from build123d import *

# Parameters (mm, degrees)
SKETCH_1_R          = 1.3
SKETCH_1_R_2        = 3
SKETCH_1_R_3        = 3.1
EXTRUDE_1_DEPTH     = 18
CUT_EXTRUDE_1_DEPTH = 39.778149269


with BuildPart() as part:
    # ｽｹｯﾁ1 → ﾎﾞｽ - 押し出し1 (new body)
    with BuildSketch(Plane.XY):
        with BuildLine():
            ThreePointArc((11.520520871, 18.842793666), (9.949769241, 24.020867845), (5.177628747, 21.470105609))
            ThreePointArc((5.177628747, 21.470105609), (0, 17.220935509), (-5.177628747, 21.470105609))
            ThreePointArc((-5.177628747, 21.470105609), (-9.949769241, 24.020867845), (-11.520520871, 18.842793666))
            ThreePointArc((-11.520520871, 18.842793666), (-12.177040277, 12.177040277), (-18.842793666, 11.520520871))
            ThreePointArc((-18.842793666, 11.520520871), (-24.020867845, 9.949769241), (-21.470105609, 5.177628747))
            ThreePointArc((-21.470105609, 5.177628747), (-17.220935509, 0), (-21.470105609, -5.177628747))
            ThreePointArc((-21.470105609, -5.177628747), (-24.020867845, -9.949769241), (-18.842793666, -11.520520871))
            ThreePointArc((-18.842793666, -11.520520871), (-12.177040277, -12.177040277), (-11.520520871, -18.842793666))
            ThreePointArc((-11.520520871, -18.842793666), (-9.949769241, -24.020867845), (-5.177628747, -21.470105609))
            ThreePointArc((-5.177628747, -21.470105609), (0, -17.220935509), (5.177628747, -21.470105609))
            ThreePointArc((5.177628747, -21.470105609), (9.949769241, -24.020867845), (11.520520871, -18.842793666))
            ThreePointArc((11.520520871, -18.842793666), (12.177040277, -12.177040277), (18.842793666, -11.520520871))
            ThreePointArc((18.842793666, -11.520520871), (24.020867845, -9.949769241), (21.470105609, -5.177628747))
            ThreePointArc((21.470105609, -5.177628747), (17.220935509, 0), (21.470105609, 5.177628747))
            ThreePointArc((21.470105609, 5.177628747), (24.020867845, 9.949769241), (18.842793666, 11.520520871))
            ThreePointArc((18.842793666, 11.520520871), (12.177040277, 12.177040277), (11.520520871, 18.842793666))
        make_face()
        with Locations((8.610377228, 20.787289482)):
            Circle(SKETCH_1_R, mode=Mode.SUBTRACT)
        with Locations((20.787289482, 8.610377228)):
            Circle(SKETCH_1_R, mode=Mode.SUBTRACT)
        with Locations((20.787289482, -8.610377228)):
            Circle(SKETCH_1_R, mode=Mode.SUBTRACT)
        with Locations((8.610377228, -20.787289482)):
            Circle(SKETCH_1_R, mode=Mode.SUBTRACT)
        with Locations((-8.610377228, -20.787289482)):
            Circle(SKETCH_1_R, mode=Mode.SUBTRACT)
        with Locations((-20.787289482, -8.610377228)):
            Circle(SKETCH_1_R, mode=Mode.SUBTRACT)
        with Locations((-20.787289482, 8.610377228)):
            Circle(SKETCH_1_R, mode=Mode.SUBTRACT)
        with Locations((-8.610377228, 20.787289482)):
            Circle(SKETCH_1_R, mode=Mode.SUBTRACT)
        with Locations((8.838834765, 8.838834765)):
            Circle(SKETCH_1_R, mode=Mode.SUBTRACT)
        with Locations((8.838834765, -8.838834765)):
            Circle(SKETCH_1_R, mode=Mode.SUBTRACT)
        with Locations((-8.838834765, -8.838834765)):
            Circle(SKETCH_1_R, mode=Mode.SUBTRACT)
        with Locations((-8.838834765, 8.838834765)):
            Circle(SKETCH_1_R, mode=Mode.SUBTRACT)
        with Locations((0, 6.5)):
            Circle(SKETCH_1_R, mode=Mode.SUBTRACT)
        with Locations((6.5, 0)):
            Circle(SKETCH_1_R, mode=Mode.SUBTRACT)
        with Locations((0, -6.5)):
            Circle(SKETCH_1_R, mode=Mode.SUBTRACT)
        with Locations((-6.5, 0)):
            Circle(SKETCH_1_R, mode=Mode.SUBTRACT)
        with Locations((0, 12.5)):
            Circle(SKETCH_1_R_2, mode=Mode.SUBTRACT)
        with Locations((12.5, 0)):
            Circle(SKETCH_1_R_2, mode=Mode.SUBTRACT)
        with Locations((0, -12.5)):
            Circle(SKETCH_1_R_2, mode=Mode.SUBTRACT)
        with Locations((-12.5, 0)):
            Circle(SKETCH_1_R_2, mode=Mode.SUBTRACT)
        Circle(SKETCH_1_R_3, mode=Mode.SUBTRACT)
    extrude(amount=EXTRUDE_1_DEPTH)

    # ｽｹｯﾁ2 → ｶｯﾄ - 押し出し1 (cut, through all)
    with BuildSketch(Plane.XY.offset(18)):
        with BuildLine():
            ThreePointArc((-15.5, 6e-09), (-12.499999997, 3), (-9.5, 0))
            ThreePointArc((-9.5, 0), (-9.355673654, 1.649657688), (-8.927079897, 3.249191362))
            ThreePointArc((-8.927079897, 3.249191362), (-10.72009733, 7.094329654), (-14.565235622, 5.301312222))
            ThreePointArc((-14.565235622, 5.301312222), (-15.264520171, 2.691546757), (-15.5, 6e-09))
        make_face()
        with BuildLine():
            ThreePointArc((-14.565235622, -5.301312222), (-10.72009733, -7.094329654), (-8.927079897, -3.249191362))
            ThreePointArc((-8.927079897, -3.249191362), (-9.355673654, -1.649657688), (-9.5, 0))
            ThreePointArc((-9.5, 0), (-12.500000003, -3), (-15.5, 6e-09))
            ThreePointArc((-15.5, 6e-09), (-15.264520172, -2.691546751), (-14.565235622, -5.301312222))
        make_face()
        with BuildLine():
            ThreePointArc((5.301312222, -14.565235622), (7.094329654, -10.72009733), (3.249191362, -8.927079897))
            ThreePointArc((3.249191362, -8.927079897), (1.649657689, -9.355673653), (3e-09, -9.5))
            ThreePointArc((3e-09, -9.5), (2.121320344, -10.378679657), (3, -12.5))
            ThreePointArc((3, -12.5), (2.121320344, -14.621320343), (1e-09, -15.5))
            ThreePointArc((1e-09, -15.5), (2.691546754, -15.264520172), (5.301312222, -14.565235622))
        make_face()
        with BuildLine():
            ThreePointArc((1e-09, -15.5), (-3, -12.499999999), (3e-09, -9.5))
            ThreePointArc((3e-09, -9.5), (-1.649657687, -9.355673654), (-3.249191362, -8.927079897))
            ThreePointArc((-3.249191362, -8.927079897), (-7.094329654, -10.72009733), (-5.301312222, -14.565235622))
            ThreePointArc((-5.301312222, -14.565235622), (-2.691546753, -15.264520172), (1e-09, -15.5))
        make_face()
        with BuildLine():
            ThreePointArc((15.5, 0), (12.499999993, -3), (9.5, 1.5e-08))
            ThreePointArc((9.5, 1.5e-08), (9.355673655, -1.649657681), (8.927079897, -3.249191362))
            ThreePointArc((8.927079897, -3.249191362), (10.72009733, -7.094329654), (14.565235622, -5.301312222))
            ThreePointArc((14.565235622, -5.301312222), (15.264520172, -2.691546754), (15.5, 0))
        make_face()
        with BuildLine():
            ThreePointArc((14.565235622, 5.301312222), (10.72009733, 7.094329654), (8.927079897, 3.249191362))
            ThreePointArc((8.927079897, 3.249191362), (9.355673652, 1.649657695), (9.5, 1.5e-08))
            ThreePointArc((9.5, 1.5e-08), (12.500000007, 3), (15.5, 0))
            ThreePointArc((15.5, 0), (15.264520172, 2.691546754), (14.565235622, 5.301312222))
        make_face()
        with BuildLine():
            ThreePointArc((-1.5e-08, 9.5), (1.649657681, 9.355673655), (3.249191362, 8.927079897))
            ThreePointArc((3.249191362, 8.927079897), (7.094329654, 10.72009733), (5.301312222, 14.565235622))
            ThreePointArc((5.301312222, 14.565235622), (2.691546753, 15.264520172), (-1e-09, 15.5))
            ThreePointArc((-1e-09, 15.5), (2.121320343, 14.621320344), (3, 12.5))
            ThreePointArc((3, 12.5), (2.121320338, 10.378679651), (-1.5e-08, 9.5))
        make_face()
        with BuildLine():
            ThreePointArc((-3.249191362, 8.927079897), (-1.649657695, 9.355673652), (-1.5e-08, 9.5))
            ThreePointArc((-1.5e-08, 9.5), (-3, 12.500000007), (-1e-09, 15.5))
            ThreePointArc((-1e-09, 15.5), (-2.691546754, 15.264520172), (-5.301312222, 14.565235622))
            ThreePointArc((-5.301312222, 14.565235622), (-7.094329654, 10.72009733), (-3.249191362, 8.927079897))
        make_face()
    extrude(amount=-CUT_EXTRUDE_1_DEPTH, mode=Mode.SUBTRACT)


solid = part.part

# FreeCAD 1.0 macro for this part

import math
import FreeCAD as App
import Part
import Sketcher

V = App.Vector
Q = App.Units.Quantity

doc = App.newDocument("Part")
body = doc.addObject("PartDesign::Body", "Body")

# Sketch on XY plane
sketch1 = body.newObject("Sketcher::SketchObject", "Sketch")
sketch1.AttachmentSupport = (doc.getObject("XY_Plane"), [""])
sketch1.MapMode = "FlatFace"
sketch1.addGeometry([
    Part.ArcOfCircle(Part.Circle(V(8.610377, 20.787289, 0), V(0, 0, 1), 3.5), math.radians(-33.75), math.radians(168.75)),  # 0
    Part.ArcOfCircle(Part.Circle(V(0, 22.5, 0), V(0, 0, 1), 5.279064), math.radians(-168.75), math.radians(-11.25)),  # 1
    Part.ArcOfCircle(Part.Circle(V(-8.610377, 20.787289, 0), V(0, 0, 1), 3.5), math.radians(11.25), math.radians(213.75)),  # 2
    Part.ArcOfCircle(Part.Circle(V(-15.909903, 15.909903, 0), V(0, 0, 1), 5.279064), math.radians(-123.75), math.radians(33.75)),  # 3
    Part.ArcOfCircle(Part.Circle(V(-20.787289, 8.610377, 0), V(0, 0, 1), 3.5), math.radians(56.25), math.radians(258.75)),  # 4
    Part.ArcOfCircle(Part.Circle(V(-22.5, 0, 0), V(0, 0, 1), 5.279064), math.radians(-78.75), math.radians(78.75)),  # 5
    Part.ArcOfCircle(Part.Circle(V(-20.787289, -8.610377, 0), V(0, 0, 1), 3.5), math.radians(101.25), math.radians(303.75)),  # 6
    Part.ArcOfCircle(Part.Circle(V(-15.909903, -15.909903, 0), V(0, 0, 1), 5.279064), math.radians(-33.75), math.radians(123.75)),  # 7
    Part.ArcOfCircle(Part.Circle(V(-8.610377, -20.787289, 0), V(0, 0, 1), 3.5), math.radians(146.25), math.radians(348.75)),  # 8
    Part.ArcOfCircle(Part.Circle(V(0, -22.5, 0), V(0, 0, 1), 5.279064), math.radians(11.25), math.radians(168.75)),  # 9
    Part.ArcOfCircle(Part.Circle(V(8.610377, -20.787289, 0), V(0, 0, 1), 3.5), math.radians(-168.75), math.radians(33.75)),  # 10
    Part.ArcOfCircle(Part.Circle(V(15.909903, -15.909903, 0), V(0, 0, 1), 5.279064), math.radians(56.25), math.radians(213.75)),  # 11
    Part.ArcOfCircle(Part.Circle(V(20.787289, -8.610377, 0), V(0, 0, 1), 3.5), math.radians(-123.75), math.radians(78.75)),  # 12
    Part.ArcOfCircle(Part.Circle(V(22.5, 0, 0), V(0, 0, 1), 5.279064), math.radians(101.25), math.radians(258.75)),  # 13
    Part.ArcOfCircle(Part.Circle(V(20.787289, 8.610377, 0), V(0, 0, 1), 3.5), math.radians(-78.75), math.radians(123.75)),  # 14
    Part.ArcOfCircle(Part.Circle(V(15.909903, 15.909903, 0), V(0, 0, 1), 5.279064), math.radians(146.25), math.radians(303.75)),  # 15
    Part.Circle(V(-8.610377, -20.787289, 0), V(0, 0, 1), 1.3),  # 16
    Part.Circle(V(-20.787289, -8.610377, 0), V(0, 0, 1), 1.3),  # 17
    Part.Circle(V(-12.5, 0, 0), V(0, 0, 1), 3),  # 18
    Part.Circle(V(-8.838835, -8.838835, 0), V(0, 0, 1), 1.3),  # 19
    Part.Circle(V(8.610377, -20.787289, 0), V(0, 0, 1), 1.3),  # 20
    Part.Circle(V(0, -12.5, 0), V(0, 0, 1), 3),  # 21
    Part.Circle(V(0, -6.5, 0), V(0, 0, 1), 1.3),  # 22
    Part.Circle(V(8.838835, -8.838835, 0), V(0, 0, 1), 1.3),  # 23
    Part.Circle(V(0, 0, 0), V(0, 0, 1), 3.1),  # 24
    Part.Circle(V(20.787289, -8.610377, 0), V(0, 0, 1), 1.3),  # 25
    Part.Circle(V(12.5, 0, 0), V(0, 0, 1), 3),  # 26
    Part.Circle(V(-20.787289, 8.610377, 0), V(0, 0, 1), 1.3),  # 27
    Part.Circle(V(-6.5, 0, 0), V(0, 0, 1), 1.3),  # 28
    Part.Circle(V(-8.838835, 8.838835, 0), V(0, 0, 1), 1.3),  # 29
    Part.Circle(V(-8.610377, 20.787289, 0), V(0, 0, 1), 1.3),  # 30
    Part.Circle(V(6.5, 0, 0), V(0, 0, 1), 1.3),  # 31
    Part.Circle(V(0, 6.5, 0), V(0, 0, 1), 1.3),  # 32
    Part.Circle(V(8.838835, 8.838835, 0), V(0, 0, 1), 1.3),  # 33
    Part.Circle(V(20.787289, 8.610377, 0), V(0, 0, 1), 1.3),  # 34
    Part.Circle(V(0, 12.5, 0), V(0, 0, 1), 3),  # 35
    Part.Circle(V(8.610377, 20.787289, 0), V(0, 0, 1), 1.3),  # 36
], False)
sketch1.addConstraint([
    Sketcher.Constraint("Tangent", 0, 2, 1, 2),
    Sketcher.Constraint("Tangent", 1, 1, 2, 1),
    Sketcher.Constraint("Tangent", 2, 2, 3, 2),
    Sketcher.Constraint("Tangent", 3, 1, 4, 1),
    Sketcher.Constraint("Tangent", 4, 2, 5, 2),
    Sketcher.Constraint("Tangent", 5, 1, 6, 1),
    Sketcher.Constraint("Tangent", 6, 2, 7, 2),
    Sketcher.Constraint("Tangent", 7, 1, 8, 1),
    Sketcher.Constraint("Tangent", 8, 2, 9, 2),
    Sketcher.Constraint("Tangent", 9, 1, 10, 1),
    Sketcher.Constraint("Tangent", 10, 2, 11, 2),
    Sketcher.Constraint("Tangent", 11, 1, 12, 1),
    Sketcher.Constraint("Tangent", 12, 2, 13, 2),
    Sketcher.Constraint("Tangent", 13, 1, 14, 1),
    Sketcher.Constraint("Tangent", 14, 2, 15, 2),
    Sketcher.Constraint("Tangent", 15, 1, 0, 1),
    Sketcher.Constraint("Coincident", 24, 3, -1, 1),
    Sketcher.Constraint("Coincident", 16, 3, 8, 3),
    Sketcher.Constraint("Coincident", 17, 3, 6, 3),
    Sketcher.Constraint("Coincident", 20, 3, 10, 3),
    Sketcher.Constraint("Coincident", 25, 3, 12, 3),
    Sketcher.Constraint("Coincident", 27, 3, 4, 3),
    Sketcher.Constraint("Coincident", 30, 3, 2, 3),
    Sketcher.Constraint("Coincident", 34, 3, 14, 3),
    Sketcher.Constraint("Coincident", 36, 3, 0, 3),
    Sketcher.Constraint("Equal", 0, 2),
    Sketcher.Constraint("Equal", 1, 3),
    Sketcher.Constraint("Equal", 2, 4),
    Sketcher.Constraint("Equal", 3, 5),
    Sketcher.Constraint("Equal", 4, 6),
    Sketcher.Constraint("Equal", 5, 7),
    Sketcher.Constraint("Equal", 6, 8),
    Sketcher.Constraint("Equal", 7, 9),
    Sketcher.Constraint("Equal", 8, 10),
    Sketcher.Constraint("Equal", 9, 11),
    Sketcher.Constraint("Equal", 10, 12),
    Sketcher.Constraint("Equal", 11, 13),
    Sketcher.Constraint("Equal", 12, 14),
    Sketcher.Constraint("Equal", 13, 15),
    Sketcher.Constraint("Equal", 16, 17),
    Sketcher.Constraint("Equal", 17, 19),
    Sketcher.Constraint("Equal", 19, 20),
    Sketcher.Constraint("Equal", 18, 21),
    Sketcher.Constraint("Equal", 20, 22),
    Sketcher.Constraint("Equal", 22, 23),
    Sketcher.Constraint("Equal", 23, 25),
    Sketcher.Constraint("Equal", 21, 26),
    Sketcher.Constraint("Equal", 25, 27),
    Sketcher.Constraint("Equal", 27, 28),
    Sketcher.Constraint("Equal", 28, 29),
    Sketcher.Constraint("Equal", 29, 30),
    Sketcher.Constraint("Equal", 30, 31),
    Sketcher.Constraint("Equal", 31, 32),
    Sketcher.Constraint("Equal", 32, 33),
    Sketcher.Constraint("Equal", 33, 34),
    Sketcher.Constraint("Equal", 26, 35),
    Sketcher.Constraint("Equal", 34, 36),
    Sketcher.Constraint("Symmetric", 0, 3, 8, 3, -1, 1),
    Sketcher.Constraint("Symmetric", 2, 3, 10, 3, -1, 1),
    Sketcher.Constraint("Symmetric", 4, 3, 12, 3, -1, 1),
    Sketcher.Constraint("Symmetric", 6, 3, 14, 3, -1, 1),
    Sketcher.Constraint("Symmetric", 18, 3, 26, 3, -1, 1),
    Sketcher.Constraint("Symmetric", 23, 3, 29, 3, -1, 1),
    Sketcher.Constraint("Symmetric", 28, 3, 31, 3, -1, 1),
    Sketcher.Constraint("Symmetric", 22, 3, 32, 3, -1, 1),
    Sketcher.Constraint("Symmetric", 19, 3, 33, 3, -1, 1),
    Sketcher.Constraint("Symmetric", 21, 3, 35, 3, -1, 1),
    Sketcher.Constraint("Symmetric", 0, 3, 2, 3, -2),
    Sketcher.Constraint("Symmetric", 6, 3, 12, 3, -2),
    Sketcher.Constraint("Symmetric", 19, 3, 23, 3, -2),
    Sketcher.Constraint("PointOnObject", 18, 3, -1),
    Sketcher.Constraint("PointOnObject", 21, 3, -2),
    Sketcher.Constraint("PointOnObject", 22, 3, -2),
    Sketcher.Constraint("PointOnObject", 28, 3, -1),
    Sketcher.Constraint("Diameter", 18, Q("6 mm")),
    Sketcher.Constraint("Diameter", 16, Q("2.6 mm")),
    Sketcher.Constraint("Diameter", 24, Q("6.2 mm")),
    Sketcher.Constraint("Radius", 0, Q("3.5 mm")),
    Sketcher.Constraint("DistanceX", 5, 3, 18, 3, Q("10 mm")),
    Sketcher.Constraint("DistanceY", 9, 3, 21, 3, Q("10 mm")),
    Sketcher.Constraint("DistanceY", 21, 3, 22, 3, Q("6 mm")),
    Sketcher.Constraint("DistanceX", 18, 3, 28, 3, Q("6 mm")),
    Sketcher.Constraint("DistanceX", 28, 3, 31, 3, Q("13 mm")),
    Sketcher.Constraint("DistanceY", 22, 3, 32, 3, Q("13 mm")),
    Sketcher.Constraint("Radius", 1, Q("5.279064 mm")),
    Sketcher.Constraint("DistanceY", -1, 1, 0, 3, Q("20.787289 mm")),
    Sketcher.Constraint("DistanceX", 4, 3, -1, 1, Q("20.787289 mm")),
    Sketcher.Constraint("DistanceY", 29, 3, 2, 2, Q("10.003959 mm")),
    Sketcher.Constraint("DistanceX", 3, 1, 29, 3, Q("10.003959 mm")),
])
pad1 = body.newObject("PartDesign::Pad", "Pad")
pad1.Profile = sketch1
pad1.Length = 18

# Sketch on XY plane
sketch2 = body.newObject("Sketcher::SketchObject", "Sketch001")
sketch2.AttachmentSupport = (doc.getObject("XY_Plane"), [""])
sketch2.MapMode = "FlatFace"
sketch2.AttachmentOffset = App.Placement(V(0, 0, 18), App.Rotation())
sketch2.addGeometry([
    Part.ArcOfCircle(Part.Circle(V(-12.5, 0, 0), V(0, 0, 1), 3), math.radians(0), math.radians(180)),  # 0
    Part.ArcOfCircle(Part.Circle(V(0, 0, 0), V(0, 0, 1), 9.5), math.radians(160), math.radians(180)),  # 1
    Part.ArcOfCircle(Part.Circle(V(-11.746158, 4.275252, 0), V(0, 0, 1), 3), math.radians(-20), math.radians(160)),  # 2
    Part.ArcOfCircle(Part.Circle(V(0, 0, 0), V(0, 0, 1), 15.5), math.radians(160), math.radians(180)),  # 3
    Part.ArcOfCircle(Part.Circle(V(-11.746158, -4.275252, 0), V(0, 0, 1), 3), math.radians(-160), math.radians(20)),  # 4
    Part.ArcOfCircle(Part.Circle(V(0, 0, 0), V(0, 0, 1), 9.5), math.radians(180), math.radians(200)),  # 5
    Part.ArcOfCircle(Part.Circle(V(-12.5, 0, 0), V(0, 0, 1), 3), math.radians(180), math.radians(360)),  # 6
    Part.ArcOfCircle(Part.Circle(V(0, 0, 0), V(0, 0, 1), 15.5), math.radians(180), math.radians(200)),  # 7
    Part.ArcOfCircle(Part.Circle(V(4.275252, -11.746158, 0), V(0, 0, 1), 3), math.radians(-70), math.radians(110)),  # 8
    Part.ArcOfCircle(Part.Circle(V(0, 0, 0), V(0, 0, 1), 9.5), math.radians(-90), math.radians(-70)),  # 9
    Part.ArcOfCircle(Part.Circle(V(0, -12.5, 0), V(0, 0, 1), 3), math.radians(0), math.radians(90)),  # 10
    Part.ArcOfCircle(Part.Circle(V(0, -12.5, 0), V(0, 0, 1), 3), math.radians(-90), math.radians(0)),  # 11
    Part.ArcOfCircle(Part.Circle(V(0, 0, 0), V(0, 0, 1), 15.5), math.radians(-90), math.radians(-70)),  # 12
    Part.ArcOfCircle(Part.Circle(V(0, -12.5, 0), V(0, 0, 1), 3), math.radians(90), math.radians(270)),  # 13
    Part.ArcOfCircle(Part.Circle(V(0, 0, 0), V(0, 0, 1), 9.5), math.radians(-110), math.radians(-90)),  # 14
    Part.ArcOfCircle(Part.Circle(V(-4.275252, -11.746158, 0), V(0, 0, 1), 3), math.radians(70), math.radians(250)),  # 15
    Part.ArcOfCircle(Part.Circle(V(0, 0, 0), V(0, 0, 1), 15.5), math.radians(-110), math.radians(-90)),  # 16
    Part.ArcOfCircle(Part.Circle(V(12.5, 0, 0), V(0, 0, 1), 3), math.radians(180), math.radians(360)),  # 17
    Part.ArcOfCircle(Part.Circle(V(0, 0, 0), V(0, 0, 1), 9.5), math.radians(-20), math.radians(0)),  # 18
    Part.ArcOfCircle(Part.Circle(V(11.746158, -4.275252, 0), V(0, 0, 1), 3), math.radians(160), math.radians(340)),  # 19
    Part.ArcOfCircle(Part.Circle(V(0, 0, 0), V(0, 0, 1), 15.5), math.radians(-20), math.radians(0)),  # 20
    Part.ArcOfCircle(Part.Circle(V(11.746158, 4.275252, 0), V(0, 0, 1), 3), math.radians(20), math.radians(200)),  # 21
    Part.ArcOfCircle(Part.Circle(V(0, 0, 0), V(0, 0, 1), 9.5), math.radians(0), math.radians(20)),  # 22
    Part.ArcOfCircle(Part.Circle(V(12.5, 0, 0), V(0, 0, 1), 3), math.radians(0), math.radians(180)),  # 23
    Part.ArcOfCircle(Part.Circle(V(0, 0, 0), V(0, 0, 1), 15.5), math.radians(0), math.radians(20)),  # 24
    Part.ArcOfCircle(Part.Circle(V(0, 0, 0), V(0, 0, 1), 9.5), math.radians(70), math.radians(90)),  # 25
    Part.ArcOfCircle(Part.Circle(V(4.275252, 11.746158, 0), V(0, 0, 1), 3), math.radians(-110), math.radians(70)),  # 26
    Part.ArcOfCircle(Part.Circle(V(0, 0, 0), V(0, 0, 1), 15.5), math.radians(70), math.radians(90)),  # 27
    Part.ArcOfCircle(Part.Circle(V(0, 12.5, 0), V(0, 0, 1), 3), math.radians(0), math.radians(90)),  # 28
    Part.ArcOfCircle(Part.Circle(V(0, 12.5, 0), V(0, 0, 1), 3), math.radians(-90), math.radians(0)),  # 29
    Part.ArcOfCircle(Part.Circle(V(0, 0, 0), V(0, 0, 1), 9.5), math.radians(90), math.radians(110)),  # 30
    Part.ArcOfCircle(Part.Circle(V(0, 12.5, 0), V(0, 0, 1), 3), math.radians(90), math.radians(270)),  # 31
    Part.ArcOfCircle(Part.Circle(V(0, 0, 0), V(0, 0, 1), 15.5), math.radians(90), math.radians(110)),  # 32
    Part.ArcOfCircle(Part.Circle(V(-4.275252, 11.746158, 0), V(0, 0, 1), 3), math.radians(110), math.radians(290)),  # 33
], False)
sketch2.addConstraint([
    Sketcher.Constraint("Tangent", 0, 1, 1, 2),
    Sketcher.Constraint("Tangent", 1, 1, 2, 1),
    Sketcher.Constraint("Tangent", 2, 2, 3, 1),
    Sketcher.Constraint("Tangent", 3, 2, 0, 2),
    Sketcher.Constraint("Tangent", 4, 2, 5, 2),
    Sketcher.Constraint("Tangent", 5, 1, 6, 2),
    Sketcher.Constraint("Tangent", 6, 1, 7, 1),
    Sketcher.Constraint("Tangent", 7, 2, 4, 1),
    Sketcher.Constraint("Tangent", 8, 2, 9, 2),
    Sketcher.Constraint("Tangent", 9, 1, 10, 2),
    Sketcher.Constraint("Tangent", 10, 1, 11, 2),
    Sketcher.Constraint("Tangent", 11, 1, 12, 1),
    Sketcher.Constraint("Tangent", 12, 2, 8, 1),
    Sketcher.Constraint("Tangent", 13, 1, 14, 2),
    Sketcher.Constraint("Tangent", 14, 1, 15, 1),
    Sketcher.Constraint("Tangent", 15, 2, 16, 1),
    Sketcher.Constraint("Tangent", 16, 2, 13, 2),
    Sketcher.Constraint("Tangent", 17, 1, 18, 2),
    Sketcher.Constraint("Tangent", 18, 1, 19, 1),
    Sketcher.Constraint("Tangent", 19, 2, 20, 1),
    Sketcher.Constraint("Tangent", 20, 2, 17, 2),
    Sketcher.Constraint("Tangent", 21, 2, 22, 2),
    Sketcher.Constraint("Tangent", 22, 1, 23, 2),
    Sketcher.Constraint("Tangent", 23, 1, 24, 1),
    Sketcher.Constraint("Tangent", 24, 2, 21, 1),
    Sketcher.Constraint("Tangent", 25, 1, 26, 1),
    Sketcher.Constraint("Tangent", 26, 2, 27, 1),
    Sketcher.Constraint("Tangent", 27, 2, 28, 2),
    Sketcher.Constraint("Tangent", 28, 1, 29, 2),
    Sketcher.Constraint("Tangent", 29, 1, 25, 2),
    Sketcher.Constraint("Tangent", 30, 1, 31, 2),
    Sketcher.Constraint("Tangent", 31, 1, 32, 1),
    Sketcher.Constraint("Tangent", 32, 2, 33, 1),
    Sketcher.Constraint("Tangent", 33, 2, 30, 2),
    Sketcher.Constraint("Coincident", 1, 3, -1, 1),
    Sketcher.Constraint("Coincident", 3, 3, -1, 1),
    Sketcher.Constraint("Coincident", 5, 3, -1, 1),
    Sketcher.Constraint("Coincident", 7, 3, -1, 1),
    Sketcher.Constraint("Coincident", 9, 3, -1, 1),
    Sketcher.Constraint("Coincident", 12, 3, -1, 1),
    Sketcher.Constraint("Coincident", 14, 3, -1, 1),
    Sketcher.Constraint("Coincident", 16, 3, -1, 1),
    Sketcher.Constraint("Coincident", 18, 3, -1, 1),
    Sketcher.Constraint("Coincident", 20, 3, -1, 1),
    Sketcher.Constraint("Coincident", 22, 3, -1, 1),
    Sketcher.Constraint("Coincident", 24, 3, -1, 1),
    Sketcher.Constraint("Coincident", 25, 3, -1, 1),
    Sketcher.Constraint("Coincident", 27, 3, -1, 1),
    Sketcher.Constraint("Coincident", 30, 3, -1, 1),
    Sketcher.Constraint("Coincident", 32, 3, -1, 1),
    Sketcher.Constraint("Coincident", 6, 3, 0, 3),
    Sketcher.Constraint("Coincident", 13, 3, 10, 3),
    Sketcher.Constraint("Coincident", 23, 3, 17, 3),
    Sketcher.Constraint("Coincident", 31, 3, 28, 3),
    Sketcher.Constraint("Coincident", 16, 2, 11, 1),
    Sketcher.Constraint("Coincident", 30, 1, 29, 1),
    Sketcher.Constraint("Equal", 2, 4),
    Sketcher.Constraint("Equal", 6, 8),
    Sketcher.Constraint("Equal", 5, 9),
    Sketcher.Constraint("Equal", 15, 17),
    Sketcher.Constraint("Equal", 14, 18),
    Sketcher.Constraint("Equal", 19, 21),
    Sketcher.Constraint("Equal", 22, 25),
    Sketcher.Constraint("Equal", 23, 26),
    Sketcher.Constraint("Symmetric", 10, 1, 28, 1, -1),
    Sketcher.Constraint("PointOnObject", 0, 3, -1),
    Sketcher.Constraint("PointOnObject", 10, 3, -2),
    Sketcher.Constraint("PointOnObject", 17, 3, -1),
    Sketcher.Constraint("Horizontal", 8, 3, 15, 3),
    Sketcher.Constraint("Horizontal", 4, 3, 19, 3),
    Sketcher.Constraint("Horizontal", 2, 3, 21, 3),
    Sketcher.Constraint("Horizontal", 26, 3, 33, 3),
    Sketcher.Constraint("Horizontal", 13, 3, 10, 1),
    Sketcher.Constraint("Vertical", 2, 3, 4, 3),
    Sketcher.Constraint("Vertical", 8, 3, 26, 3),
    Sketcher.Constraint("Radius", 0, Q("3 mm")),
    Sketcher.Constraint("Radius", 1, Q("9.5 mm")),
    Sketcher.Constraint("DistanceY", -1, 1, 2, 3, Q("4.275252 mm")),
    Sketcher.Constraint("DistanceX", -1, 1, 8, 3, Q("4.275252 mm")),
])
pocket1 = body.newObject("PartDesign::Pocket", "Pocket")
pocket1.Profile = sketch2
pocket1.Length = 39.778149

doc.recompute()
